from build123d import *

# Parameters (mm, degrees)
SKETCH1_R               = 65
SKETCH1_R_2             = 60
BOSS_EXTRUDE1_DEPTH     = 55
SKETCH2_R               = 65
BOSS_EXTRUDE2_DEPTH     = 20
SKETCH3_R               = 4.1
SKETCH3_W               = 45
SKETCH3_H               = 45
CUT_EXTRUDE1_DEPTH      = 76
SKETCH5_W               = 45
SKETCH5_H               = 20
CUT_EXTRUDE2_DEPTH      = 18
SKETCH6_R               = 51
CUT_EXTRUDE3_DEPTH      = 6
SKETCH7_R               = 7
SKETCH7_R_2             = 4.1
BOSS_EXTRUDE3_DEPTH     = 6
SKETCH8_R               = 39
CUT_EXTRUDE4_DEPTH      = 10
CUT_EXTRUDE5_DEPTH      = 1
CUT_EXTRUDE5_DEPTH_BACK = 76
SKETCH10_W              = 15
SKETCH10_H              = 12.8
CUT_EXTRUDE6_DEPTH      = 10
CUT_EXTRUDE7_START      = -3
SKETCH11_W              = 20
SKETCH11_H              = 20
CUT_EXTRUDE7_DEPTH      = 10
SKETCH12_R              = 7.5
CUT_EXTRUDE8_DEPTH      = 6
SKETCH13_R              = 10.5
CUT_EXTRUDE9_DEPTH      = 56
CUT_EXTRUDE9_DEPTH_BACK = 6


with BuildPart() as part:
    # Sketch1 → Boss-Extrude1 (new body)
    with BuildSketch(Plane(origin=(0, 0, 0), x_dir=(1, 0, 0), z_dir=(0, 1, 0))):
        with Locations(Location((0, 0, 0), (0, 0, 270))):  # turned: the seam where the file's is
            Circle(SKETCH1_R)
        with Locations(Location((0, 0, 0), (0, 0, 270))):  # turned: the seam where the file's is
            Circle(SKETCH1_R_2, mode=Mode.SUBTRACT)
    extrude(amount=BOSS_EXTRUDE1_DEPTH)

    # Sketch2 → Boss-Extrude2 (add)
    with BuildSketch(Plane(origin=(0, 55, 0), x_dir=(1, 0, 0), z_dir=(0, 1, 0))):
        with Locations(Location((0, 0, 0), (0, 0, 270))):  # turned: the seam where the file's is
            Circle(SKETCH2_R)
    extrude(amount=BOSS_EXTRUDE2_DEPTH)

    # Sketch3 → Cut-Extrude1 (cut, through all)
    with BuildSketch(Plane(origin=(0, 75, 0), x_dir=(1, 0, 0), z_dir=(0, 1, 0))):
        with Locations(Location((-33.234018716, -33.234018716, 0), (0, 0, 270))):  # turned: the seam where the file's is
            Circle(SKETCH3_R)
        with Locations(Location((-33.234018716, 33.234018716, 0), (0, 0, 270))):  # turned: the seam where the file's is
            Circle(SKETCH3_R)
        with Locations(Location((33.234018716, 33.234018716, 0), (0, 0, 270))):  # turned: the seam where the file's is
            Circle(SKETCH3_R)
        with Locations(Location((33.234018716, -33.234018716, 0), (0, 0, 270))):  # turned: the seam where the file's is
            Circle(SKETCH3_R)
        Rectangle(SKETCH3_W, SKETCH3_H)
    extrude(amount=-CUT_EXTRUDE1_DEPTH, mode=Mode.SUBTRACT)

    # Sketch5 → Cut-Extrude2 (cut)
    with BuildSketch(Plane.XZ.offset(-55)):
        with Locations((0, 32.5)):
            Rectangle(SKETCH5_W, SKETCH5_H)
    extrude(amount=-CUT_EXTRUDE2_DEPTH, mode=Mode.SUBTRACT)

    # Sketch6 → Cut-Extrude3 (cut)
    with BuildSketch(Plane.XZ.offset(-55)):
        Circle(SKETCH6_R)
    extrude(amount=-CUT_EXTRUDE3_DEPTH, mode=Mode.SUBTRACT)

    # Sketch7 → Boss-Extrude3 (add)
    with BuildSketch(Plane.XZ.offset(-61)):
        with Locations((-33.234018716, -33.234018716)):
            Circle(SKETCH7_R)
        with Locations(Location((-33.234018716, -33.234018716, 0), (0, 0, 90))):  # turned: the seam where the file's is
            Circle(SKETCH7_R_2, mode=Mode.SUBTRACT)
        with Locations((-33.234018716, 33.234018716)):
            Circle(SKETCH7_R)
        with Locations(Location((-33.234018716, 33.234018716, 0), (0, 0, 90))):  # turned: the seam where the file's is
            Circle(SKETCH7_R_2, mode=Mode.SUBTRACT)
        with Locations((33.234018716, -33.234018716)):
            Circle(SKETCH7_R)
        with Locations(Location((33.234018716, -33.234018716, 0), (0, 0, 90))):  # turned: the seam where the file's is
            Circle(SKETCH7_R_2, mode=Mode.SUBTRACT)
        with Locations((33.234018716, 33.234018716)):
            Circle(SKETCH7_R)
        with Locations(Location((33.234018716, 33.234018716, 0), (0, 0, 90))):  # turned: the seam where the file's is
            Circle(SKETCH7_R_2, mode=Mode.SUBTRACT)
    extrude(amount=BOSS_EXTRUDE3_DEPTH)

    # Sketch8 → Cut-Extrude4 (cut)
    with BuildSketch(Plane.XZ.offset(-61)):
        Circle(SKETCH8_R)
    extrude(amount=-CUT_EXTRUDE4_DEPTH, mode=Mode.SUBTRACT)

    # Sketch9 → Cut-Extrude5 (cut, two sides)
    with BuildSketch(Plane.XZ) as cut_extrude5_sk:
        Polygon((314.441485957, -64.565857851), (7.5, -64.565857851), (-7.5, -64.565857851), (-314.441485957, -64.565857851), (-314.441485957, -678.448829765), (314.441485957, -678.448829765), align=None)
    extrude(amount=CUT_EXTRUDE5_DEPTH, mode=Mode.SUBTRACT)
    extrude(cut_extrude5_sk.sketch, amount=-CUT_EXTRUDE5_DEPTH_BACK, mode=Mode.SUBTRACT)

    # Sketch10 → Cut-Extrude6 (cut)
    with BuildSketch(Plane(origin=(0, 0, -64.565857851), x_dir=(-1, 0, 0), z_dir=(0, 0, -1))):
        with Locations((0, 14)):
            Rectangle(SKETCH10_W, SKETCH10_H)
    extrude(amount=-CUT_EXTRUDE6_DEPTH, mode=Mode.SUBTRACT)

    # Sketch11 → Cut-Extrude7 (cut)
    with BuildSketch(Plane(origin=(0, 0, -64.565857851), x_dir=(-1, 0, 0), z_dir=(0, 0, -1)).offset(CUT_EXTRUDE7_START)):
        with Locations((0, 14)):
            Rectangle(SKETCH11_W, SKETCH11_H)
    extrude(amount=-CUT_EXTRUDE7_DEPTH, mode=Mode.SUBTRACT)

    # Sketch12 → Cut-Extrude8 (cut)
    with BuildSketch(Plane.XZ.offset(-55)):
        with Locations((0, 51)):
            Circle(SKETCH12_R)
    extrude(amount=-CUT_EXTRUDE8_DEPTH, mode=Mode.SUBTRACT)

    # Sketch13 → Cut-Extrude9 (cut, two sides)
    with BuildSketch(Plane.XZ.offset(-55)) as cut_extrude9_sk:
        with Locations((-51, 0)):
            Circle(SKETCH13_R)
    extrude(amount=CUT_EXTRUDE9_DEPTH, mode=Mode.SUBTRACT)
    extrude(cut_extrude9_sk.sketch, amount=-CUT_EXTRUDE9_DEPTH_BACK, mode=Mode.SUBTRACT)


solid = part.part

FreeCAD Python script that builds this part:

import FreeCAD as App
import Part
import Sketcher
from FreeCAD import Vector
Q = App.Units.Quantity


def add_polygon(sketch, points):
    """Adds a closed chain of lines whose ends are joined by coincident constraints."""
    first, n = sketch.GeometryCount, len(points)
    for a, b in zip(points, points[1:] + points[:1]):
        sketch.addGeometry(Part.LineSegment(App.Vector(*a, 0), App.Vector(*b, 0)), False)
    for i in range(n):
        sketch.addConstraint(Sketcher.Constraint("Coincident", first + i, 2, first + (i + 1) % n, 1))

doc = App.newDocument("Part")
body = doc.addObject("PartDesign::Body", "Body")

sketch1 = body.newObject("Sketcher::SketchObject", "Sketch")
sketch1.AttachmentSupport = (doc.getObject("XZ_Plane"), [""])
sketch1.MapMode = "FlatFace"
sketch1.addGeometry(Part.Circle(Vector(0, 0, 0), Vector(0, 0, 1), 65), False)
sketch1.addGeometry(Part.Circle(Vector(0, 0, 0), Vector(0, 0, 1), 60), False)
sketch1.addConstraint(Sketcher.Constraint("Coincident", 0, 3, -1, 1))
sketch1.addConstraint(Sketcher.Constraint("Coincident", 1, 3, -1, 1))
sketch1.addConstraint(Sketcher.Constraint("Diameter", 0, Q("130 mm")))
sketch1.addConstraint(Sketcher.Constraint("Diameter", 1, Q("120 mm")))
pad1 = body.newObject("PartDesign::Pad", "Pad")
pad1.Profile = sketch1
pad1.Length = 55
pad1.Reversed = True

sketch2 = body.newObject("Sketcher::SketchObject", "Sketch001")
sketch2.AttachmentSupport = (doc.getObject("XZ_Plane"), [""])
sketch2.MapMode = "FlatFace"
sketch2.AttachmentOffset = App.Placement(Vector(0, 0, -55), App.Rotation())
sketch2.addGeometry(Part.Circle(Vector(0, 0, 0), Vector(0, 0, 1), 65), False)
sketch2.addConstraint(Sketcher.Constraint("Coincident", 0, 3, -1, 1))
sketch2.addConstraint(Sketcher.Constraint("Diameter", 0, Q("130 mm")))
pad2 = body.newObject("PartDesign::Pad", "Pad001")
pad2.Profile = sketch2
pad2.Length = 20
pad2.Reversed = True

sketch3 = body.newObject("Sketcher::SketchObject", "Sketch002")
sketch3.AttachmentSupport = (doc.getObject("XZ_Plane"), [""])
sketch3.MapMode = "FlatFace"
sketch3.AttachmentOffset = App.Placement(Vector(0, 0, -75), App.Rotation())
sketch3.addGeometry(Part.Circle(Vector(-33.2, 33.2, 0), Vector(0, 0, 1), 4.1), False)
sketch3.addGeometry(Part.Circle(Vector(-33.2, -33.2, 0), Vector(0, 0, 1), 4.1), False)
sketch3.addGeometry(Part.Circle(Vector(33.2, -33.2, 0), Vector(0, 0, 1), 4.1), False)
sketch3.addGeometry(Part.Circle(Vector(33.2, 33.2, 0), Vector(0, 0, 1), 4.1), False)
add_polygon(sketch3, [(-22.5, -22.5), (-22.5, 22.5), (22.5, 22.5), (22.5, -22.5)])
sketch3.addConstraint(Sketcher.Constraint("Vertical", 4))
sketch3.addConstraint(Sketcher.Constraint("Horizontal", 5))
sketch3.addConstraint(Sketcher.Constraint("Vertical", 6))
sketch3.addConstraint(Sketcher.Constraint("Horizontal", 7))
sketch3.addConstraint(Sketcher.Constraint("Equal", 0, 1))
sketch3.addConstraint(Sketcher.Constraint("Equal", 1, 2))
sketch3.addConstraint(Sketcher.Constraint("Equal", 2, 3))
sketch3.addConstraint(Sketcher.Constraint("Symmetric", 0, 3, 2, 3, -1, 1))
sketch3.addConstraint(Sketcher.Constraint("Symmetric", 1, 3, 3, 3, -1, 1))
sketch3.addConstraint(Sketcher.Constraint("Symmetric", 4, 2, 6, 2, -1, 1))
sketch3.addConstraint(Sketcher.Constraint("Symmetric", 1, 3, 2, 3, -2))
sketch3.addConstraint(Sketcher.Constraint("Equal", 7, 4))
sketch3.addConstraint(Sketcher.Constraint("Diameter", 0, Q("8.2 mm")))
sketch3.addConstraint(Sketcher.Constraint("DistanceX", 5, 1, 5, 2, Q("45 mm")))
sketch3.addConstraint(Sketcher.Constraint("DistanceX", 0, 3, -1, 1, Q("33.234019 mm")))
sketch3.addConstraint(Sketcher.Constraint("DistanceY", -1, 1, 0, 3, Q("33.234019 mm")))
pocket1 = body.newObject("PartDesign::Pocket", "Pocket")
pocket1.Profile = sketch3
pocket1.Type = "ThroughAll"
pocket1.Reversed = True

sketch4 = body.newObject("Sketcher::SketchObject", "Sketch003")
sketch4.AttachmentSupport = (doc.getObject("XZ_Plane"), [""])
sketch4.MapMode = "FlatFace"
sketch4.AttachmentOffset = App.Placement(Vector(0, 0, -55), App.Rotation())
add_polygon(sketch4, [(-22, 42), (-22, 22), (22, 22), (22, 42)])
sketch4.addConstraint(Sketcher.Constraint("Vertical", 0))
sketch4.addConstraint(Sketcher.Constraint("Horizontal", 1))
sketch4.addConstraint(Sketcher.Constraint("Vertical", 2))
sketch4.addConstraint(Sketcher.Constraint("Horizontal", 3))
sketch4.addConstraint(Sketcher.Constraint("DistanceX", 1, 1, 1, 2, Q("45 mm")))
sketch4.addConstraint(Sketcher.Constraint("DistanceY", 0, 2, 0, 1, Q("20 mm")))
sketch4.addConstraint(Sketcher.Constraint("DistanceX", 0, 2, -1, 1, Q("22.5 mm")))
sketch4.addConstraint(Sketcher.Constraint("DistanceY", -1, 1, 0, 2, Q("22.5 mm")))
pocket2 = body.newObject("PartDesign::Pocket", "Pocket001")
pocket2.Profile = sketch4
pocket2.Length = 18

sketch5 = body.newObject("Sketcher::SketchObject", "Sketch004")
sketch5.AttachmentSupport = (doc.getObject("XZ_Plane"), [""])
sketch5.MapMode = "FlatFace"
sketch5.AttachmentOffset = App.Placement(Vector(0, 0, -55), App.Rotation())
sketch5.addGeometry(Part.Circle(Vector(0, 0, 0), Vector(0, 0, 1), 51), False)
sketch5.addConstraint(Sketcher.Constraint("Coincident", 0, 3, -1, 1))
sketch5.addConstraint(Sketcher.Constraint("Diameter", 0, Q("102 mm")))
pocket3 = body.newObject("PartDesign::Pocket", "Pocket002")
pocket3.Profile = sketch5
pocket3.Length = 6

sketch6 = body.newObject("Sketcher::SketchObject", "Sketch005")
sketch6.AttachmentSupport = (doc.getObject("XZ_Plane"), [""])
sketch6.MapMode = "FlatFace"
sketch6.AttachmentOffset = App.Placement(Vector(0, 0, -61), App.Rotation())
sketch6.addGeometry(Part.Circle(Vector(-33.2, -33.2, 0), Vector(0, 0, 1), 7), False)
sketch6.addGeometry(Part.Circle(Vector(-33.2, -33.2, 0), Vector(0, 0, 1), 4.1), False)
sketch6.addGeometry(Part.Circle(Vector(-33.2, 33.2, 0), Vector(0, 0, 1), 7), False)
sketch6.addGeometry(Part.Circle(Vector(-33.2, 33.2, 0), Vector(0, 0, 1), 4.1), False)
sketch6.addGeometry(Part.Circle(Vector(33.2, -33.2, 0), Vector(0, 0, 1), 7), False)
sketch6.addGeometry(Part.Circle(Vector(33.2, -33.2, 0), Vector(0, 0, 1), 4.1), False)
sketch6.addGeometry(Part.Circle(Vector(33.2, 33.2, 0), Vector(0, 0, 1), 7), False)
sketch6.addGeometry(Part.Circle(Vector(33.2, 33.2, 0), Vector(0, 0, 1), 4.1), False)
sketch6.addConstraint(Sketcher.Constraint("Coincident", 1, 3, 0, 3))
sketch6.addConstraint(Sketcher.Constraint("Coincident", 3, 3, 2, 3))
sketch6.addConstraint(Sketcher.Constraint("Coincident", 5, 3, 4, 3))
sketch6.addConstraint(Sketcher.Constraint("Coincident", 7, 3, 6, 3))
sketch6.addConstraint(Sketcher.Constraint("Equal", 0, 2))
sketch6.addConstraint(Sketcher.Constraint("Equal", 1, 3))
sketch6.addConstraint(Sketcher.Constraint("Equal", 2, 4))
sketch6.addConstraint(Sketcher.Constraint("Equal", 3, 5))
sketch6.addConstraint(Sketcher.Constraint("Equal", 4, 6))
sketch6.addConstraint(Sketcher.Constraint("Equal", 5, 7))
sketch6.addConstraint(Sketcher.Constraint("Symmetric", 2, 3, 4, 3, -1, 1))
sketch6.addConstraint(Sketcher.Constraint("Symmetric", 0, 3, 6, 3, -1, 1))
sketch6.addConstraint(Sketcher.Constraint("Symmetric", 0, 3, 4, 3, -2))
sketch6.addConstraint(Sketcher.Constraint("Diameter", 0, Q("14 mm")))
sketch6.addConstraint(Sketcher.Constraint("Diameter", 1, Q("8.2 mm")))
sketch6.addConstraint(Sketcher.Constraint("DistanceX", 0, 3, -1, 1, Q("33.234019 mm")))
sketch6.addConstraint(Sketcher.Constraint("DistanceY", 0, 3, -1, 1, Q("33.234019 mm")))
pad3 = body.newObject("PartDesign::Pad", "Pad002")
pad3.Profile = sketch6
pad3.Length = 6

sketch7 = body.newObject("Sketcher::SketchObject", "Sketch006")
sketch7.AttachmentSupport = (doc.getObject("XZ_Plane"), [""])
sketch7.MapMode = "FlatFace"
sketch7.AttachmentOffset = App.Placement(Vector(0, 0, -61), App.Rotation())
sketch7.addGeometry(Part.Circle(Vector(0, 0, 0), Vector(0, 0, 1), 39), False)
sketch7.addConstraint(Sketcher.Constraint("Coincident", 0, 3, -1, 1))
sketch7.addConstraint(Sketcher.Constraint("Diameter", 0, Q("78 mm")))
pocket4 = body.newObject("PartDesign::Pocket", "Pocket003")
pocket4.Profile = sketch7
pocket4.Length = 10

sketch8 = body.newObject("Sketcher::SketchObject", "Sketch007")
sketch8.AttachmentSupport = (doc.getObject("XZ_Plane"), [""])
sketch8.MapMode = "FlatFace"
add_polygon(sketch8, [(314, -65), (-314, -65), (-314, -678), (314, -678)])
sketch8.addConstraint(Sketcher.Constraint("Horizontal", 0))
sketch8.addConstraint(Sketcher.Constraint("Vertical", 1))
sketch8.addConstraint(Sketcher.Constraint("Horizontal", 2))
sketch8.addConstraint(Sketcher.Constraint("Vertical", 3))
sketch8.addConstraint(Sketcher.Constraint("DistanceX", 0, 2, 0, 1, Q("628.882972 mm")))
sketch8.addConstraint(Sketcher.Constraint("DistanceY", 1, 2, 1, 1, Q("613.882972 mm")))
sketch8.addConstraint(Sketcher.Constraint("DistanceY", 1, 2, -1, 1, Q("678.44883 mm")))
sketch8.addConstraint(Sketcher.Constraint("DistanceX", 0, 2, -1, 1, Q("314.441486 mm")))
pocket5 = body.newObject("PartDesign::Pocket", "Pocket004")
pocket5.Profile = sketch8
pocket5.Type = "ThroughAll"
pocket5.Midplane = True

sketch9 = body.newObject("Sketcher::SketchObject", "Sketch008")
sketch9.AttachmentSupport = (doc.getObject("XY_Plane"), [""])
sketch9.MapMode = "FlatFace"
sketch9.AttachmentOffset = App.Placement(Vector(0, 0, -64.565858), App.Rotation())
add_polygon(sketch9, [(8, 20), (8, 8), (-8, 8), (-8, 20)])
sketch9.addConstraint(Sketcher.Constraint("Vertical", 0))
sketch9.addConstraint(Sketcher.Constraint("Horizontal", 1))
sketch9.addConstraint(Sketcher.Constraint("Vertical", 2))
sketch9.addConstraint(Sketcher.Constraint("Horizontal", 3))
sketch9.addConstraint(Sketcher.Constraint("DistanceX", 1, 2, 1, 1, Q("15 mm")))
sketch9.addConstraint(Sketcher.Constraint("DistanceY", 0, 2, 0, 1, Q("12.8 mm")))
sketch9.addConstraint(Sketcher.Constraint("DistanceX", -1, 1, 0, 2, Q("7.5 mm")))
sketch9.addConstraint(Sketcher.Constraint("DistanceY", -1, 1, 0, 2, Q("7.6 mm")))
pocket6 = body.newObject("PartDesign::Pocket", "Pocket005")
pocket6.Profile = sketch9
pocket6.Length = 10
pocket6.Reversed = True

sketch10 = body.newObject("Sketcher::SketchObject", "Sketch009")
sketch10.AttachmentSupport = (doc.getObject("XY_Plane"), [""])
sketch10.MapMode = "FlatFace"
sketch10.AttachmentOffset = App.Placement(Vector(0, 0, -61.565858), App.Rotation())
add_polygon(sketch10, [(10, 24), (10, 4), (-10, 4), (-10, 24)])
sketch10.addConstraint(Sketcher.Constraint("Vertical", 0))
sketch10.addConstraint(Sketcher.Constraint("Horizontal", 1))
sketch10.addConstraint(Sketcher.Constraint("Vertical", 2))
sketch10.addConstraint(Sketcher.Constraint("Horizontal", 3))
sketch10.addConstraint(Sketcher.Constraint("Equal", 3, 0))
sketch10.addConstraint(Sketcher.Constraint("DistanceX", 1, 2, 1, 1, Q("20 mm")))
sketch10.addConstraint(Sketcher.Constraint("DistanceX", -1, 1, 0, 2, Q("10 mm")))
sketch10.addConstraint(Sketcher.Constraint("DistanceY", -1, 1, 0, 2, Q("4 mm")))
pocket7 = body.newObject("PartDesign::Pocket", "Pocket006")
pocket7.Profile = sketch10
pocket7.Length = 10
pocket7.Reversed = True

sketch11 = body.newObject("Sketcher::SketchObject", "Sketch010")
sketch11.AttachmentSupport = (doc.getObject("XZ_Plane"), [""])
sketch11.MapMode = "FlatFace"
sketch11.AttachmentOffset = App.Placement(Vector(0, 0, -55), App.Rotation())
sketch11.addGeometry(Part.Circle(Vector(0, 51, 0), Vector(0, 0, 1), 8), False)
sketch11.addConstraint(Sketcher.Constraint("PointOnObject", 0, 3, -2))
sketch11.addConstraint(Sketcher.Constraint("Diameter", 0, Q("15 mm")))
sketch11.addConstraint(Sketcher.Constraint("DistanceY", -1, 1, 0, 3, Q("51 mm")))
pocket8 = body.newObject("PartDesign::Pocket", "Pocket007")
pocket8.Profile = sketch11
pocket8.Length = 6

sketch12 = body.newObject("Sketcher::SketchObject", "Sketch011")
sketch12.AttachmentSupport = (doc.getObject("XZ_Plane"), [""])
sketch12.MapMode = "FlatFace"
sketch12.AttachmentOffset = App.Placement(Vector(0, 0, -55), App.Rotation())
sketch12.addGeometry(Part.Circle(Vector(-51, 0, 0), Vector(0, 0, 1), 10), False)
sketch12.addConstraint(Sketcher.Constraint("PointOnObject", 0, 3, -1))
sketch12.addConstraint(Sketcher.Constraint("Diameter", 0, Q("21 mm")))
sketch12.addConstraint(Sketcher.Constraint("DistanceX", 0, 3, -1, 1, Q("51 mm")))
pocket9 = body.newObject("PartDesign::Pocket", "Pocket008")
pocket9.Profile = sketch12
pocket9.Type = "TwoLengths"
pocket9.Length = 56
pocket9.Length2 = 6
pocket9.Reversed = True

doc.recompute()
